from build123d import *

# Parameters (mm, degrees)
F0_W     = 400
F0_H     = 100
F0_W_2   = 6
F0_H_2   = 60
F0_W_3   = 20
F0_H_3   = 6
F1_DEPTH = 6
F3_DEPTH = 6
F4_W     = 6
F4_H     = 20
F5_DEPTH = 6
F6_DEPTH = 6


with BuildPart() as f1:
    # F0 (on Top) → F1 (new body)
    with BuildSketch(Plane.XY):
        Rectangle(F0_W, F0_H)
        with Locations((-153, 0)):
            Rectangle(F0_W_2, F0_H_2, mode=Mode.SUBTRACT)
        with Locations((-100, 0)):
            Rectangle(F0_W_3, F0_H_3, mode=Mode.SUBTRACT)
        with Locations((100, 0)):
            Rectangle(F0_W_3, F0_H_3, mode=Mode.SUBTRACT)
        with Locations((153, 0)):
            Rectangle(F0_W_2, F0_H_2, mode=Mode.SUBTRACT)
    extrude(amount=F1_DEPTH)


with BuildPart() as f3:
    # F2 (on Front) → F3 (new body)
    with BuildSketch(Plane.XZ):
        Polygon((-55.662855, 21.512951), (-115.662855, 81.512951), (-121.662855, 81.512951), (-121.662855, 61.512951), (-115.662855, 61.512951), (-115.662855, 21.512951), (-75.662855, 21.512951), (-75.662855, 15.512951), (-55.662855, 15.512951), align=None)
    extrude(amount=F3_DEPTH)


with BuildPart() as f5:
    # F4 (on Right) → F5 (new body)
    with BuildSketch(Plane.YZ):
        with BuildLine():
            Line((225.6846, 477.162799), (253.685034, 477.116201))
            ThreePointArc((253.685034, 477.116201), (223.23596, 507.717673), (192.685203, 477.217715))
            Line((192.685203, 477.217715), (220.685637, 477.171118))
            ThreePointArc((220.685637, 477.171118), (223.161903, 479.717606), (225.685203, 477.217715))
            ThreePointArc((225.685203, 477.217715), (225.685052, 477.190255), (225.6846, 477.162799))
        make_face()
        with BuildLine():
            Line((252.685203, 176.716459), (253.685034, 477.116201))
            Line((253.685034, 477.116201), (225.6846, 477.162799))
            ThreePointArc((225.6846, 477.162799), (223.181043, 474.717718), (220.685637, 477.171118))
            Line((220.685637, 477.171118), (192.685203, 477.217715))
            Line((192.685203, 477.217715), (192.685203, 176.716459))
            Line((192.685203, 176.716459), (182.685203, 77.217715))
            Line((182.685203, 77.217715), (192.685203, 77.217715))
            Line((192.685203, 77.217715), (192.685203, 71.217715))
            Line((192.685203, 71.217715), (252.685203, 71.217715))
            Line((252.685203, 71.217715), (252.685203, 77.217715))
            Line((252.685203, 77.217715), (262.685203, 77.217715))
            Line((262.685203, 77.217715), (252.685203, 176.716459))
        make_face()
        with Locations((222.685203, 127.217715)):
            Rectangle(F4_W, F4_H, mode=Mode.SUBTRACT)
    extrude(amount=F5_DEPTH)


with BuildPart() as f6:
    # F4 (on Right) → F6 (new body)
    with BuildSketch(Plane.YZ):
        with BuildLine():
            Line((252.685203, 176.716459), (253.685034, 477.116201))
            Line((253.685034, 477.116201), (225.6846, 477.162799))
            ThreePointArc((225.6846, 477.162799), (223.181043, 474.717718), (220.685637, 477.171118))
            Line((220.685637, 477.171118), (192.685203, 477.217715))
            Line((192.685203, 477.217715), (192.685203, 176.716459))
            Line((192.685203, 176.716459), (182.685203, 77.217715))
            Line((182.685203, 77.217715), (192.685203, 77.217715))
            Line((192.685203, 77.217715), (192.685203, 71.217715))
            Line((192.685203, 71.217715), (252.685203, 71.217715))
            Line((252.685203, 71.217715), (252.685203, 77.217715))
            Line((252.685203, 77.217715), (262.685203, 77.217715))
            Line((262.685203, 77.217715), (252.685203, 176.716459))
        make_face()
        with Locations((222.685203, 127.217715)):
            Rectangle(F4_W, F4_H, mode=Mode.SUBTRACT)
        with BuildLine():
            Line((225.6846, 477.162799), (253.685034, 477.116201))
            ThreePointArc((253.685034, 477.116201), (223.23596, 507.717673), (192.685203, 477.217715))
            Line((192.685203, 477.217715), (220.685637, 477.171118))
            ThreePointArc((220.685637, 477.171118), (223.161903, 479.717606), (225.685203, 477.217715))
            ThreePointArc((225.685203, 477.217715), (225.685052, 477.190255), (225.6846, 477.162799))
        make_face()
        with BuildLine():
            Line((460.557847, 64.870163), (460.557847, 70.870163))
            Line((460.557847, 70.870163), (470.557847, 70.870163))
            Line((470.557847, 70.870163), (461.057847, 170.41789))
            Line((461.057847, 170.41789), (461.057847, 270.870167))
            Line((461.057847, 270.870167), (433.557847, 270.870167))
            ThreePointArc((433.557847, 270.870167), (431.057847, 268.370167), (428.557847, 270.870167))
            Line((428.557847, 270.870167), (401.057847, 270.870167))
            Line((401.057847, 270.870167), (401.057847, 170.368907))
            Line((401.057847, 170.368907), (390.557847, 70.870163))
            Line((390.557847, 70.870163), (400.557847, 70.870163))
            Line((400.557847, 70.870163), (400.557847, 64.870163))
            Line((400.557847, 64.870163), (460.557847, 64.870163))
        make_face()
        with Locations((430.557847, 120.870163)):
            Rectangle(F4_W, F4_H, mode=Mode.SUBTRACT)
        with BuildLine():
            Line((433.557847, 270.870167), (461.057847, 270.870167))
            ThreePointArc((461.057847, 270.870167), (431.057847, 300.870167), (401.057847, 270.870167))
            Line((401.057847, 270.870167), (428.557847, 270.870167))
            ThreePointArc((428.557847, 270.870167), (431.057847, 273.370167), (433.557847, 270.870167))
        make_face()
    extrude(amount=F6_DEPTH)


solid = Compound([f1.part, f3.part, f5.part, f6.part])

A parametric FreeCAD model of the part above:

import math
import FreeCAD as App
import Part
import Sketcher
from FreeCAD import Vector
Q = App.Units.Quantity

doc = App.newDocument("Part")
body = doc.addObject("PartDesign::Body", "Body")

sketch1 = body.newObject("Sketcher::SketchObject", "Sketch")
sketch1.AttachmentSupport = (doc.getObject("XY_Plane"), [""])
sketch1.MapMode = "FlatFace"
sketch1.addGeometry([
    Part.LineSegment(Vector(-200, 50, 0), Vector(-200, -50, 0)),
    Part.LineSegment(Vector(-200, -50, 0), Vector(200, -50, 0)),
    Part.LineSegment(Vector(200, -50, 0), Vector(200, 50, 0)),
    Part.LineSegment(Vector(200, 50, 0), Vector(-200, 50, 0)),
    Part.LineSegment(Vector(-150, -30, 0), Vector(-156, -30, 0)),
    Part.LineSegment(Vector(-156, -30, 0), Vector(-156, 30, 0)),
    Part.LineSegment(Vector(-156, 30, 0), Vector(-150, 30, 0)),
    Part.LineSegment(Vector(-150, 30, 0), Vector(-150, -30, 0)),
    Part.LineSegment(Vector(-90, -3, 0), Vector(-110, -3, 0)),
    Part.LineSegment(Vector(-110, -3, 0), Vector(-110, 3, 0)),
    Part.LineSegment(Vector(-110, 3, 0), Vector(-90, 3, 0)),
    Part.LineSegment(Vector(-90, 3, 0), Vector(-90, -3, 0)),
    Part.LineSegment(Vector(110, -3, 0), Vector(90, -3, 0)),
    Part.LineSegment(Vector(90, -3, 0), Vector(90, 3, 0)),
    Part.LineSegment(Vector(90, 3, 0), Vector(110, 3, 0)),
    Part.LineSegment(Vector(110, 3, 0), Vector(110, -3, 0)),
    Part.LineSegment(Vector(156, -30, 0), Vector(150, -30, 0)),
    Part.LineSegment(Vector(150, -30, 0), Vector(150, 30, 0)),
    Part.LineSegment(Vector(150, 30, 0), Vector(156, 30, 0)),
    Part.LineSegment(Vector(156, 30, 0), Vector(156, -30, 0)),
], False)
sketch1.addConstraint([
    Sketcher.Constraint("Coincident", 0, 2, 1, 1),
    Sketcher.Constraint("Coincident", 1, 2, 2, 1),
    Sketcher.Constraint("Coincident", 2, 2, 3, 1),
    Sketcher.Constraint("Coincident", 3, 2, 0, 1),
    Sketcher.Constraint("Coincident", 4, 2, 5, 1),
    Sketcher.Constraint("Coincident", 5, 2, 6, 1),
    Sketcher.Constraint("Coincident", 6, 2, 7, 1),
    Sketcher.Constraint("Coincident", 7, 2, 4, 1),
    Sketcher.Constraint("Coincident", 8, 2, 9, 1),
    Sketcher.Constraint("Coincident", 9, 2, 10, 1),
    Sketcher.Constraint("Coincident", 10, 2, 11, 1),
    Sketcher.Constraint("Coincident", 11, 2, 8, 1),
    Sketcher.Constraint("Coincident", 12, 2, 13, 1),
    Sketcher.Constraint("Coincident", 13, 2, 14, 1),
    Sketcher.Constraint("Coincident", 14, 2, 15, 1),
    Sketcher.Constraint("Coincident", 15, 2, 12, 1),
    Sketcher.Constraint("Coincident", 16, 2, 17, 1),
    Sketcher.Constraint("Coincident", 17, 2, 18, 1),
    Sketcher.Constraint("Coincident", 18, 2, 19, 1),
    Sketcher.Constraint("Coincident", 19, 2, 16, 1),
    Sketcher.Constraint("Vertical", 0),
    Sketcher.Constraint("Horizontal", 1),
    Sketcher.Constraint("Vertical", 2),
    Sketcher.Constraint("Horizontal", 3),
    Sketcher.Constraint("Horizontal", 4),
    Sketcher.Constraint("Vertical", 5),
    Sketcher.Constraint("Horizontal", 6),
    Sketcher.Constraint("Vertical", 7),
    Sketcher.Constraint("Horizontal", 8),
    Sketcher.Constraint("Vertical", 9),
    Sketcher.Constraint("Horizontal", 10),
    Sketcher.Constraint("Vertical", 11),
    Sketcher.Constraint("Horizontal", 12),
    Sketcher.Constraint("Vertical", 13),
    Sketcher.Constraint("Horizontal", 14),
    Sketcher.Constraint("Vertical", 15),
    Sketcher.Constraint("Horizontal", 16),
    Sketcher.Constraint("Vertical", 17),
    Sketcher.Constraint("Horizontal", 18),
    Sketcher.Constraint("Vertical", 19),
    Sketcher.Constraint("Symmetric", 0, 2, 2, 2, -1, 1),
    Sketcher.Constraint("Symmetric", 10, 2, 12, 2, -1, 1),
    Sketcher.Constraint("Symmetric", 8, 2, 14, 2, -1, 1),
    Sketcher.Constraint("Symmetric", 6, 2, 16, 2, -1, 1),
    Sketcher.Constraint("Symmetric", 4, 2, 18, 2, -1, 1),
    Sketcher.Constraint("Horizontal", 11, 2, 12, 2),
    Sketcher.Constraint("Horizontal", 7, 2, 16, 2),
    Sketcher.Constraint("Equal", 18, 9),
    Sketcher.Constraint("DistanceX", 1, 1, 1, 2, Q("400 mm")),
    Sketcher.Constraint("DistanceX", 4, 2, 4, 1, Q("6 mm")),
    Sketcher.Constraint("DistanceX", 8, 2, 8, 1, Q("20 mm")),
    Sketcher.Constraint("DistanceY", 0, 2, 0, 1, Q("100 mm")),
    Sketcher.Constraint("DistanceY", 5, 1, 5, 2, Q("60 mm")),
    Sketcher.Constraint("DistanceX", 4, 2, -1, 1, Q("156 mm")),
    Sketcher.Constraint("DistanceX", 8, 2, -1, 1, Q("110 mm")),
])
pad1 = body.newObject("PartDesign::Pad", "Pad")
pad1.Profile = sketch1
pad1.Length = 6
body2 = doc.addObject("PartDesign::Body", "Body001")

sketch2 = body2.newObject("Sketcher::SketchObject", "Sketch001")
sketch2.AttachmentSupport = (doc.getObject("XZ_Plane001"), [""])
sketch2.MapMode = "FlatFace"
sketch2.addGeometry([
    Part.LineSegment(Vector(-56, 22, 0), Vector(-116, 82, 0)),
    Part.LineSegment(Vector(-116, 82, 0), Vector(-122, 82, 0)),
    Part.LineSegment(Vector(-122, 82, 0), Vector(-122, 62, 0)),
    Part.LineSegment(Vector(-122, 62, 0), Vector(-116, 62, 0)),
    Part.LineSegment(Vector(-116, 62, 0), Vector(-116, 22, 0)),
    Part.LineSegment(Vector(-116, 22, 0), Vector(-76, 22, 0)),
    Part.LineSegment(Vector(-76, 22, 0), Vector(-76, 16, 0)),
    Part.LineSegment(Vector(-76, 16, 0), Vector(-56, 16, 0)),
    Part.LineSegment(Vector(-56, 16, 0), Vector(-56, 22, 0)),
], False)
sketch2.addConstraint([
    Sketcher.Constraint("Coincident", 0, 2, 1, 1),
    Sketcher.Constraint("Coincident", 1, 2, 2, 1),
    Sketcher.Constraint("Coincident", 2, 2, 3, 1),
    Sketcher.Constraint("Coincident", 3, 2, 4, 1),
    Sketcher.Constraint("Coincident", 4, 2, 5, 1),
    Sketcher.Constraint("Coincident", 5, 2, 6, 1),
    Sketcher.Constraint("Coincident", 6, 2, 7, 1),
    Sketcher.Constraint("Coincident", 7, 2, 8, 1),
    Sketcher.Constraint("Coincident", 8, 2, 0, 1),
    Sketcher.Constraint("Horizontal", 1),
    Sketcher.Constraint("Vertical", 2),
    Sketcher.Constraint("Horizontal", 3),
    Sketcher.Constraint("Vertical", 4),
    Sketcher.Constraint("Horizontal", 5),
    Sketcher.Constraint("Vertical", 6),
    Sketcher.Constraint("Horizontal", 7),
    Sketcher.Constraint("Vertical", 8),
    Sketcher.Constraint("Horizontal", 5, 2, 8, 2),
    Sketcher.Constraint("Vertical", 0, 2, 3, 2),
    Sketcher.Constraint("Equal", 7, 2),
    Sketcher.Constraint("Equal", 5, 4),
    Sketcher.Constraint("Equal", 3, 6),
    Sketcher.Constraint("DistanceX", 1, 2, 1, 1, Q("6 mm")),
    Sketcher.Constraint("DistanceX", 5, 1, 5, 2, Q("40 mm")),
    Sketcher.Constraint("DistanceX", 7, 1, 7, 2, Q("20 mm")),
    Sketcher.Constraint("DistanceY", -1, 1, 0, 2, Q("81.512951 mm")),
    Sketcher.Constraint("DistanceX", 0, 2, -1, 1, Q("115.662855 mm")),
])
pad2 = body2.newObject("PartDesign::Pad", "Pad001")
pad2.Profile = sketch2
pad2.Length = 6
body3 = doc.addObject("PartDesign::Body", "Body002")

sketch3 = body3.newObject("Sketcher::SketchObject", "Sketch002")
sketch3.AttachmentSupport = (doc.getObject("YZ_Plane002"), [""])
sketch3.MapMode = "FlatFace"
sketch3.addGeometry([
    Part.ArcOfCircle(Part.Circle(Vector(223.19, 477.22, 0), Vector(0, 0, 1), 30.5), math.radians(0), math.radians(180)),
    Part.LineSegment(Vector(192.69, 477.22, 0), Vector(192.69, 176.72, 0)),
    Part.LineSegment(Vector(192.69, 176.72, 0), Vector(182.69, 77.22, 0)),
    Part.LineSegment(Vector(182.69, 77.22, 0), Vector(192.69, 77.22, 0)),
    Part.LineSegment(Vector(192.69, 77.22, 0), Vector(192.69, 71.22, 0)),
    Part.LineSegment(Vector(192.69, 71.22, 0), Vector(252.69, 71.22, 0)),
    Part.LineSegment(Vector(252.69, 71.22, 0), Vector(252.69, 77.22, 0)),
    Part.LineSegment(Vector(252.69, 77.22, 0), Vector(262.69, 77.22, 0)),
    Part.LineSegment(Vector(262.69, 77.22, 0), Vector(252.69, 176.72, 0)),
    Part.LineSegment(Vector(252.69, 176.72, 0), Vector(253.69, 477.12, 0)),
    Part.LineSegment(Vector(225.69, 117.22, 0), Vector(219.69, 117.22, 0)),
    Part.LineSegment(Vector(219.69, 117.22, 0), Vector(219.69, 137.22, 0)),
    Part.LineSegment(Vector(219.69, 137.22, 0), Vector(225.69, 137.22, 0)),
    Part.LineSegment(Vector(225.69, 137.22, 0), Vector(225.69, 117.22, 0)),
    Part.ArcOfCircle(Part.Circle(Vector(223.19, 477.22, 0), Vector(0, 0, 1), 2.5), math.radians(0), math.radians(181)),
    Part.ArcOfCircle(Part.Circle(Vector(223.18, 477.22, 0), Vector(0, 0, 1), 2.5), math.radians(-1.26), math.radians(0)),
    Part.ArcOfCircle(Part.Circle(Vector(223.19, 477.22, 0), Vector(0, 0, 1), 2.5), math.radians(-179), math.radians(-1)),
], False)
sketch3.addConstraint([
    Sketcher.Constraint("Tangent", 0, 2, 1, 1),
    Sketcher.Constraint("Coincident", 1, 2, 2, 1),
    Sketcher.Constraint("Coincident", 2, 2, 3, 1),
    Sketcher.Constraint("Coincident", 3, 2, 4, 1),
    Sketcher.Constraint("Coincident", 4, 2, 5, 1),
    Sketcher.Constraint("Coincident", 5, 2, 6, 1),
    Sketcher.Constraint("Coincident", 6, 2, 7, 1),
    Sketcher.Constraint("Coincident", 7, 2, 8, 1),
    Sketcher.Constraint("Coincident", 8, 2, 9, 1),
    Sketcher.Constraint("Tangent", 9, 2, 0, 1),
    Sketcher.Constraint("Coincident", 10, 2, 11, 1),
    Sketcher.Constraint("Coincident", 11, 2, 12, 1),
    Sketcher.Constraint("Coincident", 12, 2, 13, 1),
    Sketcher.Constraint("Coincident", 13, 2, 10, 1),
    Sketcher.Constraint("Coincident", 14, 1, 15, 2),
    Sketcher.Constraint("Coincident", 15, 1, 16, 2),
    Sketcher.Constraint("Tangent", 16, 1, 14, 2),
    Sketcher.Constraint("Vertical", 1),
    Sketcher.Constraint("Horizontal", 3),
    Sketcher.Constraint("Vertical", 4),
    Sketcher.Constraint("Horizontal", 5),
    Sketcher.Constraint("Vertical", 6),
    Sketcher.Constraint("Horizontal", 7),
    Sketcher.Constraint("Horizontal", 10),
    Sketcher.Constraint("Vertical", 11),
    Sketcher.Constraint("Horizontal", 12),
    Sketcher.Constraint("Vertical", 13),
    Sketcher.Constraint("Coincident", 14, 3, 0, 3),
    Sketcher.Constraint("Equal", 14, 16),
    Sketcher.Constraint("Horizontal", 3, 2, 6, 2),
    Sketcher.Constraint("Horizontal", 1, 2, 8, 2),
    Sketcher.Constraint("Horizontal", 0, 2, 14, 1),
    Sketcher.Constraint("Vertical", 1, 2, 3, 2),
    Sketcher.Constraint("Vertical", 6, 2, 8, 2),
    Sketcher.Constraint("Vertical", 13, 2, 14, 1),
    Sketcher.Constraint("Equal", 3, 7),
    Sketcher.Constraint("Equal", 12, 4),
    Sketcher.Constraint("Radius", 0, Q("30.5 mm")),
    Sketcher.Constraint("Radius", 14, Q("2.5 mm")),
    Sketcher.Constraint("DistanceX", 3, 1, 3, 2, Q("10 mm")),
    Sketcher.Constraint("DistanceX", 5, 1, 5, 2, Q("60 mm")),
    Sketcher.Constraint("DistanceX", 10, 2, 10, 1, Q("6 mm")),
    Sketcher.Constraint("DistanceY", 11, 1, 11, 2, Q("20 mm")),
    Sketcher.Constraint("Distance", 2, Q("100 mm")),
    Sketcher.Constraint("DistanceY", 2, 2, 0, 2, Q("400 mm")),
    Sketcher.Constraint("DistanceY", 3, 2, 10, 2, Q("40 mm")),
    Sketcher.Constraint("Radius", 15, Q("2.504953 mm")),
    Sketcher.Constraint("DistanceY", -1, 1, 9, 2, Q("477.116201 mm")),
    Sketcher.Constraint("DistanceX", -1, 1, 15, 1, Q("225.6846 mm")),
    Sketcher.Constraint("DistanceY", -1, 1, 15, 1, Q("477.162799 mm")),
    Sketcher.Constraint("DistanceY", 16, 1, 15, 3, Q("0.046641 mm")),
])
pad3 = body3.newObject("PartDesign::Pad", "Pad002")
pad3.Profile = sketch3
pad3.Length = 6
body4 = doc.addObject("PartDesign::Body", "Body003")
body4.AllowCompound = True

sketch4 = body4.newObject("Sketcher::SketchObject", "Sketch003")
sketch4.AttachmentSupport = (doc.getObject("YZ_Plane003"), [""])
sketch4.MapMode = "FlatFace"
sketch4.addGeometry([
    Part.LineSegment(Vector(252.69, 176.72, 0), Vector(253.69, 477.12, 0)),
    Part.ArcOfCircle(Part.Circle(Vector(223.19, 477.22, 0), Vector(0, 0, 1), 30.5), math.radians(0), math.radians(180)),
    Part.LineSegment(Vector(192.69, 477.22, 0), Vector(192.69, 176.72, 0)),
    Part.LineSegment(Vector(192.69, 176.72, 0), Vector(182.69, 77.22, 0)),
    Part.LineSegment(Vector(182.69, 77.22, 0), Vector(192.69, 77.22, 0)),
    Part.LineSegment(Vector(192.69, 77.22, 0), Vector(192.69, 71.22, 0)),
    Part.LineSegment(Vector(192.69, 71.22, 0), Vector(252.69, 71.22, 0)),
    Part.LineSegment(Vector(252.69, 71.22, 0), Vector(252.69, 77.22, 0)),
    Part.LineSegment(Vector(252.69, 77.22, 0), Vector(262.69, 77.22, 0)),
    Part.LineSegment(Vector(262.69, 77.22, 0), Vector(252.69, 176.72, 0)),
    Part.ArcOfCircle(Part.Circle(Vector(223.19, 477.22, 0), Vector(0, 0, 1), 2.5), math.radians(-179), math.radians(-1)),
    Part.ArcOfCircle(Part.Circle(Vector(223.19, 477.22, 0), Vector(0, 0, 1), 2.5), math.radians(0), math.radians(181)),
    Part.ArcOfCircle(Part.Circle(Vector(223.18, 477.22, 0), Vector(0, 0, 1), 2.5), math.radians(-1.26), math.radians(0)),
    Part.LineSegment(Vector(225.69, 117.22, 0), Vector(219.69, 117.22, 0)),
    Part.LineSegment(Vector(219.69, 117.22, 0), Vector(219.69, 137.22, 0)),
    Part.LineSegment(Vector(219.69, 137.22, 0), Vector(225.69, 137.22, 0)),
    Part.LineSegment(Vector(225.69, 137.22, 0), Vector(225.69, 117.22, 0)),
    Part.LineSegment(Vector(460.56, 64.87, 0), Vector(460.56, 70.87, 0)),
    Part.LineSegment(Vector(460.56, 70.87, 0), Vector(470.56, 70.87, 0)),
    Part.LineSegment(Vector(470.56, 70.87, 0), Vector(461.06, 170.42, 0)),
    Part.LineSegment(Vector(461.06, 170.42, 0), Vector(461.06, 270.87, 0)),
    Part.ArcOfCircle(Part.Circle(Vector(431.06, 270.87, 0), Vector(0, 0, 1), 30), math.radians(0), math.radians(180)),
    Part.LineSegment(Vector(401.06, 270.87, 0), Vector(401.06, 170.37, 0)),
    Part.LineSegment(Vector(401.06, 170.37, 0), Vector(390.56, 70.87, 0)),
    Part.LineSegment(Vector(390.56, 70.87, 0), Vector(400.56, 70.87, 0)),
    Part.LineSegment(Vector(400.56, 70.87, 0), Vector(400.56, 64.87, 0)),
    Part.LineSegment(Vector(400.56, 64.87, 0), Vector(460.56, 64.87, 0)),
    Part.Circle(Vector(431.06, 270.87, 0), Vector(0, 0, 1), 2.5),
    Part.LineSegment(Vector(433.56, 110.87, 0), Vector(427.56, 110.87, 0)),
    Part.LineSegment(Vector(427.56, 110.87, 0), Vector(427.56, 130.87, 0)),
    Part.LineSegment(Vector(427.56, 130.87, 0), Vector(433.56, 130.87, 0)),
    Part.LineSegment(Vector(433.56, 130.87, 0), Vector(433.56, 110.87, 0)),
], False)
sketch4.addConstraint([
    Sketcher.Constraint("Tangent", 0, 2, 1, 1),
    Sketcher.Constraint("Tangent", 1, 2, 2, 1),
    Sketcher.Constraint("Coincident", 2, 2, 3, 1),
    Sketcher.Constraint("Coincident", 3, 2, 4, 1),
    Sketcher.Constraint("Coincident", 4, 2, 5, 1),
    Sketcher.Constraint("Coincident", 5, 2, 6, 1),
    Sketcher.Constraint("Coincident", 6, 2, 7, 1),
    Sketcher.Constraint("Coincident", 7, 2, 8, 1),
    Sketcher.Constraint("Coincident", 8, 2, 9, 1),
    Sketcher.Constraint("Coincident", 9, 2, 0, 1),
    Sketcher.Constraint("Tangent", 10, 1, 11, 2),
    Sketcher.Constraint("Coincident", 11, 1, 12, 2),
    Sketcher.Constraint("Coincident", 12, 1, 10, 2),
    Sketcher.Constraint("Coincident", 13, 2, 14, 1),
    Sketcher.Constraint("Coincident", 14, 2, 15, 1),
    Sketcher.Constraint("Coincident", 15, 2, 16, 1),
    Sketcher.Constraint("Coincident", 16, 2, 13, 1),
    Sketcher.Constraint("Coincident", 17, 2, 18, 1),
    Sketcher.Constraint("Coincident", 18, 2, 19, 1),
    Sketcher.Constraint("Coincident", 19, 2, 20, 1),
    Sketcher.Constraint("Tangent", 20, 2, 21, 1),
    Sketcher.Constraint("Tangent", 21, 2, 22, 1),
    Sketcher.Constraint("Coincident", 22, 2, 23, 1),
    Sketcher.Constraint("Coincident", 23, 2, 24, 1),
    Sketcher.Constraint("Coincident", 24, 2, 25, 1),
    Sketcher.Constraint("Coincident", 25, 2, 26, 1),
    Sketcher.Constraint("Coincident", 26, 2, 17, 1),
    Sketcher.Constraint("Coincident", 28, 2, 29, 1),
    Sketcher.Constraint("Coincident", 29, 2, 30, 1),
    Sketcher.Constraint("Coincident", 30, 2, 31, 1),
    Sketcher.Constraint("Coincident", 31, 2, 28, 1),
    Sketcher.Constraint("Vertical", 2),
    Sketcher.Constraint("Horizontal", 4),
    Sketcher.Constraint("Vertical", 5),
    Sketcher.Constraint("Horizontal", 6),
    Sketcher.Constraint("Vertical", 7),
    Sketcher.Constraint("Horizontal", 8),
    Sketcher.Constraint("Horizontal", 13),
    Sketcher.Constraint("Vertical", 14),
    Sketcher.Constraint("Horizontal", 15),
    Sketcher.Constraint("Vertical", 16),
    Sketcher.Constraint("Vertical", 17),
    Sketcher.Constraint("Horizontal", 18),
    Sketcher.Constraint("Vertical", 20),
    Sketcher.Constraint("Vertical", 22),
    Sketcher.Constraint("Horizontal", 24),
    Sketcher.Constraint("Vertical", 25),
    Sketcher.Constraint("Horizontal", 26),
    Sketcher.Constraint("Horizontal", 28),
    Sketcher.Constraint("Vertical", 29),
    Sketcher.Constraint("Horizontal", 30),
    Sketcher.Constraint("Vertical", 31),
    Sketcher.Constraint("Coincident", 10, 3, 1, 3),
    Sketcher.Constraint("Coincident", 27, 3, 21, 3),
    Sketcher.Constraint("Equal", 10, 11),
    Sketcher.Constraint("Equal", 11, 27),
    Sketcher.Constraint("Horizontal", 4, 2, 7, 2),
    Sketcher.Constraint("Horizontal", 2, 2, 9, 2),
    Sketcher.Constraint("Horizontal", 1, 2, 11, 1),
    Sketcher.Constraint("Horizontal", 18, 2, 23, 2),
    Sketcher.Constraint("Vertical", 2, 2, 4, 2),
    Sketcher.Constraint("Vertical", 7, 2, 9, 2),
    Sketcher.Constraint("Vertical", 11, 1, 15, 2),
    Sketcher.Constraint("Equal", 4, 8),
    Sketcher.Constraint("Equal", 8, 18),
    Sketcher.Constraint("Equal", 18, 24),
    Sketcher.Constraint("Equal", 6, 26),
    Sketcher.Constraint("Equal", 15, 28),
    Sketcher.Constraint("Equal", 30, 5),
    Sketcher.Constraint("Equal", 7, 17),
    Sketcher.Constraint("Equal", 16, 29),
    Sketcher.Constraint("Equal", 9, 19),
    Sketcher.Constraint("Diameter", 27, Q("5 mm")),
    Sketcher.Constraint("Radius", 21, Q("30 mm")),
    Sketcher.Constraint("Radius", 1, Q("30.5 mm")),
    Sketcher.Constraint("DistanceX", 4, 1, 4, 2, Q("10 mm")),
    Sketcher.Constraint("DistanceX", 6, 1, 6, 2, Q("60 mm")),
    Sketcher.Constraint("DistanceX", 13, 2, 13, 1, Q("6 mm")),
    Sketcher.Constraint("DistanceY", 14, 1, 14, 2, Q("20 mm")),
    Sketcher.Constraint("Distance", 3, Q("100 mm")),
    Sketcher.Constraint("DistanceY", 3, 2, 1, 2, Q("400 mm")),
    Sketcher.Constraint("DistanceY", 4, 2, 13, 2, Q("40 mm")),
    Sketcher.Constraint("DistanceX", 24, 2, 28, 2, Q("27 mm")),
    Sketcher.Constraint("DistanceY", 24, 2, 28, 2, Q("40 mm")),
    Sketcher.Constraint("DistanceX", 21, 3, 17, 2, Q("29.5 mm")),
    Sketcher.Constraint("Radius", 12, Q("2.504953 mm")),
    Sketcher.Constraint("DistanceY", 22, 2, 22, 1, Q("100.50126 mm")),
    Sketcher.Constraint("DistanceY", -1, 1, 0, 2, Q("477.116201 mm")),
    Sketcher.Constraint("DistanceX", -1, 1, 12, 1, Q("225.6846 mm")),
    Sketcher.Constraint("DistanceY", -1, 1, 12, 1, Q("477.162799 mm")),
    Sketcher.Constraint("DistanceY", 20, 1, 20, 2, Q("100.452277 mm")),
    Sketcher.Constraint("DistanceY", -1, 1, 19, 2, Q("170.41789 mm")),
    Sketcher.Constraint("DistanceY", 10, 1, 12, 3, Q("0.046641 mm")),
    Sketcher.Constraint("DistanceX", -1, 1, 21, 3, Q("431.057847 mm")),
])
pad4 = body4.newObject("PartDesign::Pad", "Pad003")
pad4.Profile = sketch4
pad4.Length = 6

doc.recompute()
